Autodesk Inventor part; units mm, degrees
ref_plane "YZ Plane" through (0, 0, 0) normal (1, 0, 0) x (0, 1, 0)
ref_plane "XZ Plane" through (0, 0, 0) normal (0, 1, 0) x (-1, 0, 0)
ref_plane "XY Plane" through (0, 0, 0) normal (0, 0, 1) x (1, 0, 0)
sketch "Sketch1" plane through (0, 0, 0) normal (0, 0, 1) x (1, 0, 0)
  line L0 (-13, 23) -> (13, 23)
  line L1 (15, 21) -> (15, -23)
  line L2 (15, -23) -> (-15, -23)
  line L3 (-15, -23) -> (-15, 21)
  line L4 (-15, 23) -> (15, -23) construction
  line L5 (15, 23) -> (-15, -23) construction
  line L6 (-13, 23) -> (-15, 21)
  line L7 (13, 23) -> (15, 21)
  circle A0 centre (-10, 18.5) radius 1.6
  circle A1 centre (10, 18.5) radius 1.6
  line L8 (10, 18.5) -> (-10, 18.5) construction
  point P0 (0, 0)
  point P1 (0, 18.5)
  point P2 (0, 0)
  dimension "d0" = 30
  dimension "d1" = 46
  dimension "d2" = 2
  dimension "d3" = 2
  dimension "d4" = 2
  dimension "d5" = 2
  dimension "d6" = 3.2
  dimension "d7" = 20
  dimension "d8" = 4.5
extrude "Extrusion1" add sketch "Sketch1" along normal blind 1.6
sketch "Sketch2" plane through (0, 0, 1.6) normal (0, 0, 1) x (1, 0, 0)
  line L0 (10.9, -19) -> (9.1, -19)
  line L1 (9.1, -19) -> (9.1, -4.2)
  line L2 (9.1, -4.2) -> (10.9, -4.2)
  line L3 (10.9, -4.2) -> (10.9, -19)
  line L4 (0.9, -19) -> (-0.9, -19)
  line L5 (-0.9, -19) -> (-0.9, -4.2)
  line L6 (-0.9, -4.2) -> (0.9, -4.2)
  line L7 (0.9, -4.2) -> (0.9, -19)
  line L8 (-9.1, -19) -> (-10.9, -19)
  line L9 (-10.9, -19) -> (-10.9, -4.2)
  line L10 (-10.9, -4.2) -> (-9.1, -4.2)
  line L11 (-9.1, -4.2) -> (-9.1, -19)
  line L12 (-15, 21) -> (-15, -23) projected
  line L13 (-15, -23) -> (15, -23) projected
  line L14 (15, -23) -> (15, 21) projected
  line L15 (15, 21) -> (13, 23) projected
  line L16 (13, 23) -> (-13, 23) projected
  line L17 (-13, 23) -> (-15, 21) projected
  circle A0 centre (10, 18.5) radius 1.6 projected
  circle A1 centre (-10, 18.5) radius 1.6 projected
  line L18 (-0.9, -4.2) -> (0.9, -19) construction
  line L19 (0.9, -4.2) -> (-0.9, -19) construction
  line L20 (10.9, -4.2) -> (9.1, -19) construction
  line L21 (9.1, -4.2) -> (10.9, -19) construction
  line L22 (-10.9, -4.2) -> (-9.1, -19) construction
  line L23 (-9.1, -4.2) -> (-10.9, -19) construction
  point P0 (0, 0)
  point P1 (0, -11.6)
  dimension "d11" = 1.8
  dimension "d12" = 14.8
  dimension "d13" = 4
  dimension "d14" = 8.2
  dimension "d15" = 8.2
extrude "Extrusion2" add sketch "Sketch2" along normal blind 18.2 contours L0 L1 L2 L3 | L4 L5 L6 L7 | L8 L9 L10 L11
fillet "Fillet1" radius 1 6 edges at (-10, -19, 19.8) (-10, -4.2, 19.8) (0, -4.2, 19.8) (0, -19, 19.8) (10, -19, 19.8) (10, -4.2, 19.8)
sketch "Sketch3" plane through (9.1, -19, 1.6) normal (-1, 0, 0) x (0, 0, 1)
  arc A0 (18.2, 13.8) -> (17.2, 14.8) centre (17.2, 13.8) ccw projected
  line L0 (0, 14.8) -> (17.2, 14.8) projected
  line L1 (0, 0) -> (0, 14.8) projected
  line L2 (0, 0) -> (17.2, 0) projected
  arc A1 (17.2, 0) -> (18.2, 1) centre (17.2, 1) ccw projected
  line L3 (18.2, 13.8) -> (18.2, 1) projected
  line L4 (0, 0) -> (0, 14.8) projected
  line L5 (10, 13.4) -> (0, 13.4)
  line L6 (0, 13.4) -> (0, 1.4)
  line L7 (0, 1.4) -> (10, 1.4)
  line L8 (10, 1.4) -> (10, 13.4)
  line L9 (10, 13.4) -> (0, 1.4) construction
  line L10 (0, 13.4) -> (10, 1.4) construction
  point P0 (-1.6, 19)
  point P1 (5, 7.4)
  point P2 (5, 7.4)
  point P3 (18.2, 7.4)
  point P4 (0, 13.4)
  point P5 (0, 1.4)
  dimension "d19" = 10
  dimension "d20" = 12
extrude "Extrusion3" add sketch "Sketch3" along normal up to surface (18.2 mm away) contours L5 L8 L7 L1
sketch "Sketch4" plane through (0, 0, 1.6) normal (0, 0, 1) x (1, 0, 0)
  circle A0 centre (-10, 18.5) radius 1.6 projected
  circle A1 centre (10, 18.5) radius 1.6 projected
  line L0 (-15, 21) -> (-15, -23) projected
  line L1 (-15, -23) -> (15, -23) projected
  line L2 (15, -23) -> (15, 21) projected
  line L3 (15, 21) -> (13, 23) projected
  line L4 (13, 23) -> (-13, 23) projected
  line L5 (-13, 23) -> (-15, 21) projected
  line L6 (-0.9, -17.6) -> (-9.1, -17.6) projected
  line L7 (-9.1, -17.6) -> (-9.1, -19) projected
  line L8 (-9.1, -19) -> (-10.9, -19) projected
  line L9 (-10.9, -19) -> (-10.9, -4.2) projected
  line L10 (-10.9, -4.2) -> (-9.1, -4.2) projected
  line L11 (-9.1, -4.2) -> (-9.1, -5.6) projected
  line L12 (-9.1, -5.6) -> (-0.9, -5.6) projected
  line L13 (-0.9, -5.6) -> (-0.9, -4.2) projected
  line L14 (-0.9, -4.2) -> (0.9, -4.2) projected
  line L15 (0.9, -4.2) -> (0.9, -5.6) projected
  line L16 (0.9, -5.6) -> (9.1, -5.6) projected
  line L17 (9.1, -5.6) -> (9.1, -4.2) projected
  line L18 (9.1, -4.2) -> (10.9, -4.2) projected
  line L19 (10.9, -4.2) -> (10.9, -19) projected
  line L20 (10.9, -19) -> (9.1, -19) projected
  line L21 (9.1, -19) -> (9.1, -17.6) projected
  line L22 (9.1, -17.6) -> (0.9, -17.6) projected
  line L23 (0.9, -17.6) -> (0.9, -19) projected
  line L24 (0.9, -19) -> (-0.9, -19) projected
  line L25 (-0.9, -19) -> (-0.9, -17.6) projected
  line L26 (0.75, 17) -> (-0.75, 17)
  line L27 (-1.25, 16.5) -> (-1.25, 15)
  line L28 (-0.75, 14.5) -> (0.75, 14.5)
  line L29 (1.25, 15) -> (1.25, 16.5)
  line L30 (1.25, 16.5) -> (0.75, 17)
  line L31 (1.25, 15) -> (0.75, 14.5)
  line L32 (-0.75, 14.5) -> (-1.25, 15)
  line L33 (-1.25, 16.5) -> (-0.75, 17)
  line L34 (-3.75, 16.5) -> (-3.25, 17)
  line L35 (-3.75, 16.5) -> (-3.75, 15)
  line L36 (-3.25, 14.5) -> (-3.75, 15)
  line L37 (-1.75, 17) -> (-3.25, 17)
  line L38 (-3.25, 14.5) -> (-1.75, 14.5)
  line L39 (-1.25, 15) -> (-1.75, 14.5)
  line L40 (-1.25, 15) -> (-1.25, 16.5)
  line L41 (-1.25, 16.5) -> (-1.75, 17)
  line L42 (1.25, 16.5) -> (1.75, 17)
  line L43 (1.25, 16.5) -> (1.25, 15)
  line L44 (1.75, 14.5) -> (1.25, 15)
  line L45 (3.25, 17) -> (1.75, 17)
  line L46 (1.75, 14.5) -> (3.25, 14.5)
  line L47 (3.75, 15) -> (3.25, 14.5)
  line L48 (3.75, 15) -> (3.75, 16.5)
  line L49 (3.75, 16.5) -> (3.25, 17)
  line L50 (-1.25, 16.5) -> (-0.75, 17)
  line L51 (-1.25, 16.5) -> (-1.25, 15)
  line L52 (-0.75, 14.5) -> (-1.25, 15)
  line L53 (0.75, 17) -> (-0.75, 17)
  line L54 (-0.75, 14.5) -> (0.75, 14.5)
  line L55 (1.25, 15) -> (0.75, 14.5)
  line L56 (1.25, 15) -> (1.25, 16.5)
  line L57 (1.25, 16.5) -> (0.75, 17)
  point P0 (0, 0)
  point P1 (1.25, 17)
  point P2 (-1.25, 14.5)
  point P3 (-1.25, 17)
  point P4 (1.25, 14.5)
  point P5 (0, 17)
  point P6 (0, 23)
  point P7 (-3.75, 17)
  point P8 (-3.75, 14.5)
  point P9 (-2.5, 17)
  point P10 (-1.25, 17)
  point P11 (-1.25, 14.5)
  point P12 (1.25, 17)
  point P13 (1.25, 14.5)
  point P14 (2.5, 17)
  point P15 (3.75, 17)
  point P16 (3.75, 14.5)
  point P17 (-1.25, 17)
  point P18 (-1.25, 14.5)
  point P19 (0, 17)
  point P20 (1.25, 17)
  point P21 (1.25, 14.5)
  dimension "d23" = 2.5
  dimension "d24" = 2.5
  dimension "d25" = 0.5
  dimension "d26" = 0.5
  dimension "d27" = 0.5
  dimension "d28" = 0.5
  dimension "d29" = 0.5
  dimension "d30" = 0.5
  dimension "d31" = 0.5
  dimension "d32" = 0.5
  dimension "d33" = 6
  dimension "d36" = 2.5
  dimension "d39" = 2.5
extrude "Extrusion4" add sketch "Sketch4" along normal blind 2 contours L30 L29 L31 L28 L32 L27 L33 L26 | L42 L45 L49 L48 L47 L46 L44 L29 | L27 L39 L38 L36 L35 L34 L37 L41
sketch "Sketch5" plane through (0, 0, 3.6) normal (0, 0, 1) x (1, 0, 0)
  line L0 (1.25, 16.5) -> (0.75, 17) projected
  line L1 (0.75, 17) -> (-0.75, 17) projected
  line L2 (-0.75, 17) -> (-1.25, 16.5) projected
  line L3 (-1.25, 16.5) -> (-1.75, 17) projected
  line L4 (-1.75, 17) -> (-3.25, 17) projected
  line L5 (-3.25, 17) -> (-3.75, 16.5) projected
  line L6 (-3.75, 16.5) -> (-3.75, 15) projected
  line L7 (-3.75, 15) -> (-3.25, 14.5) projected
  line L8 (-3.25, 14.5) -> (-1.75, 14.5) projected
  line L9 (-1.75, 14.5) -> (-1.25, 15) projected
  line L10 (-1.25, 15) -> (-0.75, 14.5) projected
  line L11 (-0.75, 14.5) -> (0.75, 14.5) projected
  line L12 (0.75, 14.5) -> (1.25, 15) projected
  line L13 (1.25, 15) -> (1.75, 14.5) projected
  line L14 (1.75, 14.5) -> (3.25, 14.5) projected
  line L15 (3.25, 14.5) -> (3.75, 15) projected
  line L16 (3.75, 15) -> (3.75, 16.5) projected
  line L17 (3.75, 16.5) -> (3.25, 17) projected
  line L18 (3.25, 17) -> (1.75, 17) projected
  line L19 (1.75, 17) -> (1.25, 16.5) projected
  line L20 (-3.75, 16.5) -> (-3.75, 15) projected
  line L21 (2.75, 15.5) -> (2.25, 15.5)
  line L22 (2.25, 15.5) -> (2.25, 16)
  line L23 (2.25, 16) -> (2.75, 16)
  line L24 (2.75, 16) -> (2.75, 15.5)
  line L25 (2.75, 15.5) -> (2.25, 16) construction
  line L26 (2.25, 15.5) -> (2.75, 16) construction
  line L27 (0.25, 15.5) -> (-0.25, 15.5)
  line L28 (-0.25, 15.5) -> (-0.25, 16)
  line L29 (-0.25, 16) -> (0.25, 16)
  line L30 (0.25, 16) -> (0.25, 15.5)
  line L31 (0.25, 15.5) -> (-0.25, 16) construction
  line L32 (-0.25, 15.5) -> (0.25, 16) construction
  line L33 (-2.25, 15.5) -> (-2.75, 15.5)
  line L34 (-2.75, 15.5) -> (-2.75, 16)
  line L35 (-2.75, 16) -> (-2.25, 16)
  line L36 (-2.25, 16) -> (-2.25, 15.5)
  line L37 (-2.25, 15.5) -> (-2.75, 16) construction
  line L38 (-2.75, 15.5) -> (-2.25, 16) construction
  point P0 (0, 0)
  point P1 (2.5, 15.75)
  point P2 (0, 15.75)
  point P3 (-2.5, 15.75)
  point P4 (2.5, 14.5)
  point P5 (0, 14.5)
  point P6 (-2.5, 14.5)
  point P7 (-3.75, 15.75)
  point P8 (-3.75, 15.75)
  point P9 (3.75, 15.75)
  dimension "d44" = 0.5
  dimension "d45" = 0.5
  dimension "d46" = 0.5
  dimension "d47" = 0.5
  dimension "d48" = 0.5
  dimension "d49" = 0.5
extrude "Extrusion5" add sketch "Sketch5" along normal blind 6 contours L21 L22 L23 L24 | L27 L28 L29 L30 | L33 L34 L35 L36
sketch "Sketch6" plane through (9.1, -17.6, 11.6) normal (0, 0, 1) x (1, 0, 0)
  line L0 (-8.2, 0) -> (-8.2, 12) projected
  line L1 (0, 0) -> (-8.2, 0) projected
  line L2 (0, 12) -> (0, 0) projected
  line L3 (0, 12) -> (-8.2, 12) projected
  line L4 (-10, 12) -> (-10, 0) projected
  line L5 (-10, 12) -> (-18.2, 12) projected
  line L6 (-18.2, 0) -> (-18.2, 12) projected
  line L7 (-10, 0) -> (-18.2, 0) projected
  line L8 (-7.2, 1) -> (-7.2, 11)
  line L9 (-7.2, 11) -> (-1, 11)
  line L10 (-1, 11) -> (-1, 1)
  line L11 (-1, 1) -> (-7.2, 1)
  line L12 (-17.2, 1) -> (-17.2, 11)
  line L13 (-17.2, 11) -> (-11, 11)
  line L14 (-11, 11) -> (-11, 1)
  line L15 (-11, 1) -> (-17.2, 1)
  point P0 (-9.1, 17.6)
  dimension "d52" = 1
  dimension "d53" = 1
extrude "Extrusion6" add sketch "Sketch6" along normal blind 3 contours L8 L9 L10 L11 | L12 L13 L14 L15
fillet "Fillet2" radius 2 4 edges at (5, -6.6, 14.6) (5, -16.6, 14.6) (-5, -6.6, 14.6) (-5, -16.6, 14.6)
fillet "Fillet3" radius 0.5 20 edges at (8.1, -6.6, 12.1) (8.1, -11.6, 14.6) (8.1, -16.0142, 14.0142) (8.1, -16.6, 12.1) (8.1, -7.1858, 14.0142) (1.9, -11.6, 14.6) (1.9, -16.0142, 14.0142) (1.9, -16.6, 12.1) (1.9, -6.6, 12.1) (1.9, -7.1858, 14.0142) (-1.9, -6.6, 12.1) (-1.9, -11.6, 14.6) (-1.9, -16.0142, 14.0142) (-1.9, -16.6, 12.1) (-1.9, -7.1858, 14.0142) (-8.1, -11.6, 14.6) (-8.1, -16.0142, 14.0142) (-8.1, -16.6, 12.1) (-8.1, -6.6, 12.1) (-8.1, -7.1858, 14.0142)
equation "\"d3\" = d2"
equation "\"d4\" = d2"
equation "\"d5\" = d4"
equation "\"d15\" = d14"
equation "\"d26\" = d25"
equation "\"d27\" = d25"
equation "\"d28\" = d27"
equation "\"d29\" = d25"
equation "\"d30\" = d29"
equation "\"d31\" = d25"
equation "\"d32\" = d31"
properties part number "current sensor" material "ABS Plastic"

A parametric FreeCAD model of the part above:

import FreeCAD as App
import Part
import Sketcher
from FreeCAD import Vector


def edges_at(feature, points):
    """Names of the edges that pass closest to the given points."""
    edges = feature.Shape.Edges
    near = lambda p: min(range(len(edges)), key=lambda i: edges[i].distToShape(Part.Vertex(*p))[0])
    return sorted({f"Edge{near(p) + 1}" for p in points})


def add_polygon(sketch, points):
    """Adds a closed chain of lines whose ends are joined by coincident constraints."""
    first, n = sketch.GeometryCount, len(points)
    for a, b in zip(points, points[1:] + points[:1]):
        sketch.addGeometry(Part.LineSegment(App.Vector(*a, 0), App.Vector(*b, 0)), False)
    for i in range(n):
        sketch.addConstraint(Sketcher.Constraint("Coincident", first + i, 2, first + (i + 1) % n, 1))

doc = App.newDocument("Part")
body = doc.addObject("PartDesign::Body", "Body")

# Sketch on XY plane
sketch1 = doc.addObject("Sketcher::SketchObject", "Sketch")
body.addObject(sketch1)
sketch1.AttachmentSupport = (doc.XY_Plane, [""])
sketch1.MapMode = "FlatFace"
add_polygon(sketch1, [(13, 23), (-13, 23), (-15, 21), (-15, -23), (15, -23), (15, 21)])  # lines 0-5
sketch1.addGeometry(Part.Circle(Vector(-10, 18.5, 0), Vector(0, 0, 1), 1.6), False)  # 6
sketch1.addGeometry(Part.Circle(Vector(10, 18.5, 0), Vector(0, 0, 1), 1.6), False)  # 7
sketch1.addConstraint([
    Sketcher.Constraint("Horizontal", 0),
    Sketcher.Constraint("Vertical", 2),
    Sketcher.Constraint("Horizontal", 3),
    Sketcher.Constraint("Vertical", 4),
    Sketcher.Constraint("Equal", 6, 7),
    Sketcher.Constraint("Symmetric", 6, 3, 7, 3, -2),
    Sketcher.Constraint("Symmetric", 1, 2, 4, 2, -2),
    Sketcher.Constraint("Perpendicular", 1, 5),
    Sketcher.Constraint("Equal", 1, 5),
    Sketcher.Constraint("Diameter", 6, 3.2),
    Sketcher.Constraint("DistanceX", 3, 1, 3, 2, 30.0),
    Sketcher.Constraint("DistanceX", 6, 3, 7, 3, 20.0),
    Sketcher.Constraint("DistanceX", 1, 2, 0, 2, 2.0),
    Sketcher.Constraint("DistanceY", 2, 2, 0, 2, 46.0),
    Sketcher.Constraint("DistanceY", 6, 3, 0, 2, 4.5),
    Sketcher.Constraint("DistanceY", -1, 1, 0, 2, 23.0),
])
pad1 = doc.addObject("PartDesign::Pad", "Pad")
body.addObject(pad1)
pad1.Profile = sketch1
pad1.Length = 1.6

# Sketch on XY plane
sketch2 = doc.addObject("Sketcher::SketchObject", "Sketch001")
body.addObject(sketch2)
sketch2.AttachmentSupport = (doc.XY_Plane, [""])
sketch2.MapMode = "FlatFace"
sketch2.AttachmentOffset = App.Placement(Vector(0, 0, 1.6), App.Rotation())
add_polygon(sketch2, [(9.1, -19), (10.9, -19), (10.9, -4.2), (9.1, -4.2)])  # lines 0-3
add_polygon(sketch2, [(-0.9, -19), (0.9, -19), (0.9, -4.2), (-0.9, -4.2)])  # lines 4-7
add_polygon(sketch2, [(-10.9, -19), (-9.1, -19), (-9.1, -4.2), (-10.9, -4.2)])  # lines 8-11
sketch2.addConstraint([
    Sketcher.Constraint("Horizontal", 0),
    Sketcher.Constraint("Vertical", 1),
    Sketcher.Constraint("Horizontal", 2),
    Sketcher.Constraint("Vertical", 3),
    Sketcher.Constraint("Horizontal", 4),
    Sketcher.Constraint("Vertical", 5),
    Sketcher.Constraint("Horizontal", 6),
    Sketcher.Constraint("Vertical", 7),
    Sketcher.Constraint("Horizontal", 8),
    Sketcher.Constraint("Vertical", 9),
    Sketcher.Constraint("Horizontal", 10),
    Sketcher.Constraint("Vertical", 11),
    Sketcher.Constraint("Symmetric", 3, 2, 8, 2, -2),
    Sketcher.Constraint("Symmetric", 1, 2, 10, 2, -2),
    Sketcher.Constraint("Horizontal", 3, 2, 4, 2),
    Sketcher.Constraint("Horizontal", 2, 2, 5, 2),
    Sketcher.Constraint("Equal", 2, 4),
    Sketcher.Constraint("DistanceX", 0, 1, 0, 2, 1.8),
    Sketcher.Constraint("DistanceY", 1, 1, 1, 2, 14.8),
    Sketcher.Constraint("DistanceX", 4, 2, 3, 2, 8.2),
    Sketcher.Constraint("DistanceX", 8, 2, 7, 2, 8.2),
    Sketcher.Constraint("DistanceY", 0, 2, -1, 1, 19.0),
])
pad2 = doc.addObject("PartDesign::Pad", "Pad001")
body.addObject(pad2)
pad2.Profile = sketch2
pad2.Length = 18.2
doc.recompute()

fillet = doc.addObject("PartDesign::Fillet", "Fillet")
body.addObject(fillet)
fillet.Base = (pad2, edges_at(pad2, [
    (-10, -19, 19.8),
    (-10, -4.2, 19.8),
    (0, -4.2, 19.8),
    (0, -19, 19.8),
    (10, -19, 19.8),
    (10, -4.2, 19.8),
]))
fillet.Radius = 1

# Sketch on YZ plane
sketch3 = doc.addObject("Sketcher::SketchObject", "Sketch002")
body.addObject(sketch3)
sketch3.AttachmentSupport = (doc.YZ_Plane, [""])
sketch3.MapMode = "FlatFace"
sketch3.AttachmentOffset = App.Placement(Vector(0, 0, 9.1), App.Rotation())
add_polygon(sketch3, [(-5.6, 11.6), (-5.6, 1.6), (-17.6, 1.6), (-17.6, 11.6)])  # lines 0-3
sketch3.addConstraint([
    Sketcher.Constraint("Vertical", 0),
    Sketcher.Constraint("Horizontal", 1),
    Sketcher.Constraint("Vertical", 2),
    Sketcher.Constraint("Horizontal", 3),
    Sketcher.Constraint("DistanceX", 1, 2, 1, 1, 12.0),
    Sketcher.Constraint("DistanceY", 0, 2, 0, 1, 10.0),
    Sketcher.Constraint("DistanceX", 0, 2, -1, 1, 5.6),
    Sketcher.Constraint("DistanceY", -1, 1, 0, 2, 1.6),
])
pad3 = doc.addObject("PartDesign::Pad", "Pad002")
body.addObject(pad3)
pad3.Profile = sketch3
pad3.Length = 18.2
pad3.Reversed = True

# Sketch on XY plane
sketch4 = doc.addObject("Sketcher::SketchObject", "Sketch003")
body.addObject(sketch4)
sketch4.AttachmentSupport = (doc.XY_Plane, [""])
sketch4.MapMode = "FlatFace"
sketch4.AttachmentOffset = App.Placement(Vector(0, 0, 1.6), App.Rotation())
add_polygon(sketch4, [(1.25, 16.5), (0.75, 17), (-0.75, 17), (-1.25, 16.5), (-1.75, 17), (-3.25, 17), (-3.75, 16.5), (-3.75, 15), (-3.25, 14.5), (-1.75, 14.5), (-1.25, 15), (-0.75, 14.5), (0.75, 14.5), (1.25, 15), (1.75, 14.5), (3.25, 14.5), (3.75, 15), (3.75, 16.5), (3.25, 17), (1.75, 17)])  # lines 0-19
sketch4.addConstraint([
    Sketcher.Constraint("Horizontal", 1),
    Sketcher.Constraint("Horizontal", 4),
    Sketcher.Constraint("Vertical", 6),
    Sketcher.Constraint("Horizontal", 8),
    Sketcher.Constraint("Horizontal", 11),
    Sketcher.Constraint("Horizontal", 14),
    Sketcher.Constraint("Vertical", 16),
    Sketcher.Constraint("Horizontal", 18),
    Sketcher.Constraint("Symmetric", 9, 2, 12, 2, -2),
    Sketcher.Constraint("Symmetric", 8, 2, 13, 2, -2),
    Sketcher.Constraint("Symmetric", 6, 2, 15, 2, -2),
    Sketcher.Constraint("Symmetric", 4, 2, 17, 2, -2),
    Sketcher.Constraint("Symmetric", 2, 2, 19, 2, -2),
    Sketcher.Constraint("Perpendicular", 0, 2),
    Sketcher.Constraint("Perpendicular", 2, 3),
    Sketcher.Constraint("Perpendicular", 3, 5),
    Sketcher.Constraint("Perpendicular", 5, 7),
    Sketcher.Constraint("Perpendicular", 7, 9),
    Sketcher.Constraint("Perpendicular", 9, 10),
    Sketcher.Constraint("Perpendicular", 10, 12),
    Sketcher.Constraint("Perpendicular", 12, 13),
    Sketcher.Constraint("Perpendicular", 13, 15),
    Sketcher.Constraint("Perpendicular", 15, 17),
    Sketcher.Constraint("Perpendicular", 17, 19),
    Sketcher.Constraint("Horizontal", 1, 2, 3, 2),
    Sketcher.Constraint("Horizontal", 2, 2, 5, 2),
    Sketcher.Constraint("Horizontal", 6, 2, 9, 2),
    Sketcher.Constraint("Horizontal", 8, 2, 10, 2),
    Sketcher.Constraint("Vertical", 4, 2, 7, 2),
    Sketcher.Constraint("Vertical", 3, 2, 8, 2),
    Sketcher.Constraint("Equal", 1, 4),
    Sketcher.Constraint("Equal", 18, 6),
    Sketcher.Constraint("DistanceX", 2, 2, 1, 2, 0.5),
    Sketcher.Constraint("DistanceX", 3, 2, 0, 2, 2.5),
    Sketcher.Constraint("DistanceY", -1, 1, 0, 2, 17.0),
])
pad4 = doc.addObject("PartDesign::Pad", "Pad003")
body.addObject(pad4)
pad4.Profile = sketch4
pad4.Length = 2

# Sketch on XY plane
sketch5 = doc.addObject("Sketcher::SketchObject", "Sketch004")
body.addObject(sketch5)
sketch5.AttachmentSupport = (doc.XY_Plane, [""])
sketch5.MapMode = "FlatFace"
sketch5.AttachmentOffset = App.Placement(Vector(0, 0, 3.6), App.Rotation())
add_polygon(sketch5, [(2.25, 15.5), (2.75, 15.5), (2.75, 16), (2.25, 16)])  # lines 0-3
add_polygon(sketch5, [(-0.25, 15.5), (0.25, 15.5), (0.25, 16), (-0.25, 16)])  # lines 4-7
add_polygon(sketch5, [(-2.75, 15.5), (-2.25, 15.5), (-2.25, 16), (-2.75, 16)])  # lines 8-11
sketch5.addConstraint([
    Sketcher.Constraint("Horizontal", 0),
    Sketcher.Constraint("Vertical", 1),
    Sketcher.Constraint("Horizontal", 2),
    Sketcher.Constraint("Vertical", 3),
    Sketcher.Constraint("Horizontal", 4),
    Sketcher.Constraint("Vertical", 5),
    Sketcher.Constraint("Horizontal", 6),
    Sketcher.Constraint("Vertical", 7),
    Sketcher.Constraint("Horizontal", 8),
    Sketcher.Constraint("Vertical", 9),
    Sketcher.Constraint("Horizontal", 10),
    Sketcher.Constraint("Vertical", 11),
    Sketcher.Constraint("Symmetric", 3, 2, 8, 2, -2),
    Sketcher.Constraint("Symmetric", 1, 2, 10, 2, -2),
    Sketcher.Constraint("Horizontal", 3, 2, 4, 2),
    Sketcher.Constraint("Horizontal", 2, 2, 5, 2),
    Sketcher.Constraint("Equal", 2, 4),
    Sketcher.Constraint("Equal", 10, 1),
    Sketcher.Constraint("DistanceX", 0, 1, 0, 2, 0.5),
    Sketcher.Constraint("DistanceY", -1, 1, 1, 2, 16.0),
    Sketcher.Constraint("DistanceX", 4, 2, 3, 2, 2.0),
    Sketcher.Constraint("DistanceX", 8, 2, 7, 2, 2.0),
])
pad5 = doc.addObject("PartDesign::Pad", "Pad004")
body.addObject(pad5)
pad5.Profile = sketch5
pad5.Length = 6

# Sketch on XY plane
sketch6 = doc.addObject("Sketcher::SketchObject", "Sketch005")
body.addObject(sketch6)
sketch6.AttachmentSupport = (doc.XY_Plane, [""])
sketch6.MapMode = "FlatFace"
sketch6.AttachmentOffset = App.Placement(Vector(0, 0, 11.6), App.Rotation())
add_polygon(sketch6, [(1.9, -6.6), (1.9, -16.6), (8.1, -16.6), (8.1, -6.6)])  # lines 0-3
add_polygon(sketch6, [(-8.1, -6.6), (-8.1, -16.6), (-1.9, -16.6), (-1.9, -6.6)])  # lines 4-7
sketch6.addConstraint([
    Sketcher.Constraint("Vertical", 0),
    Sketcher.Constraint("Horizontal", 1),
    Sketcher.Constraint("Vertical", 2),
    Sketcher.Constraint("Horizontal", 3),
    Sketcher.Constraint("Vertical", 4),
    Sketcher.Constraint("Horizontal", 5),
    Sketcher.Constraint("Vertical", 6),
    Sketcher.Constraint("Horizontal", 7),
    Sketcher.Constraint("Symmetric", 1, 2, 4, 2, -2),
    Sketcher.Constraint("Symmetric", 3, 2, 6, 2, -2),
    Sketcher.Constraint("DistanceY", 0, 2, 0, 1, 10.0),
    Sketcher.Constraint("DistanceX", 1, 1, 1, 2, 6.2),
    Sketcher.Constraint("DistanceX", 4, 2, 0, 2, 10.0),
    Sketcher.Constraint("DistanceY", 0, 2, -1, 1, 16.6),
])
pad6 = doc.addObject("PartDesign::Pad", "Pad005")
body.addObject(pad6)
pad6.Profile = sketch6
pad6.Length = 3
doc.recompute()

fillet2 = doc.addObject("PartDesign::Fillet", "Fillet001")
body.addObject(fillet2)
fillet2.Base = (pad6, edges_at(pad6, [
    (5, -6.6, 14.6),
    (5, -16.6, 14.6),
    (-5, -6.6, 14.6),
    (-5, -16.6, 14.6),
]))
fillet2.Radius = 2
doc.recompute()

fillet3 = doc.addObject("PartDesign::Fillet", "Fillet002")
body.addObject(fillet3)
fillet3.Base = (fillet2, edges_at(fillet2, [
    (8.1, -6.6, 12.1),
    (8.1, -11.6, 14.6),
    (8.1, -16.014, 14.014),
    (8.1, -16.6, 12.1),
    (8.1, -7.186, 14.014),
    (1.9, -11.6, 14.6),
    (1.9, -16.014, 14.014),
    (1.9, -16.6, 12.1),
    (1.9, -6.6, 12.1),
    (1.9, -7.186, 14.014),
    (-1.9, -6.6, 12.1),
    (-1.9, -11.6, 14.6),
    (-1.9, -16.014, 14.014),
    (-1.9, -16.6, 12.1),
    (-1.9, -7.186, 14.014),
    (-8.1, -11.6, 14.6),
    (-8.1, -16.014, 14.014),
    (-8.1, -16.6, 12.1),
    (-8.1, -6.6, 12.1),
    (-8.1, -7.186, 14.014),
]))
fillet3.Radius = 0.5

doc.recompute()
